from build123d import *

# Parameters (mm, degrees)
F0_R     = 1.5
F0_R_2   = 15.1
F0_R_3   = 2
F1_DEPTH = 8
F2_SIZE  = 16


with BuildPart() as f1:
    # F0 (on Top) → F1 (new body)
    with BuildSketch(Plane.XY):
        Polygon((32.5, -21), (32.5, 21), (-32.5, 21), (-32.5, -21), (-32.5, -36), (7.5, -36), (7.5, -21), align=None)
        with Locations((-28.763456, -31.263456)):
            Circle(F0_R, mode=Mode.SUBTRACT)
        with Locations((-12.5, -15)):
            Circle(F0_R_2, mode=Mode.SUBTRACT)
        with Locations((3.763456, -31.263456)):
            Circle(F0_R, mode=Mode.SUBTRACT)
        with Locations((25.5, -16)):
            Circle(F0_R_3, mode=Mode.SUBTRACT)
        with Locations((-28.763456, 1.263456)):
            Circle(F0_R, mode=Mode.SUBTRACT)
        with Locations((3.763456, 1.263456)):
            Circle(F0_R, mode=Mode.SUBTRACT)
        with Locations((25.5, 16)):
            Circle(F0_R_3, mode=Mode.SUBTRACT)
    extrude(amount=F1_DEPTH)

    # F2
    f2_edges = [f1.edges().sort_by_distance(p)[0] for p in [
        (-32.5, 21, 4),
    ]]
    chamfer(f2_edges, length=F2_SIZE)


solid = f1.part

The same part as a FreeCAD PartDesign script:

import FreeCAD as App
import Part
import Sketcher

V = App.Vector


def edges_at(feature, points):
    """Names of the edges that pass closest to the given points."""
    edges = feature.Shape.Edges
    near = lambda p: min(range(len(edges)), key=lambda i: edges[i].distToShape(Part.Vertex(*p))[0])
    return sorted({f"Edge{near(p) + 1}" for p in points})

doc = App.newDocument("Part")
body = doc.addObject("PartDesign::Body", "Body")

# Sketch on XY plane
sketch1 = doc.addObject("Sketcher::SketchObject", "Sketch")
body.addObject(sketch1)
sketch1.AttachmentSupport = (doc.XY_Plane, [""])
sketch1.MapMode = "FlatFace"
sketch1.addGeometry([
    Part.LineSegment(V(32.5, -21, 0), V(32.5, 21, 0)),  # 0
    Part.LineSegment(V(32.5, 21, 0), V(-32.5, 21, 0)),  # 1
    Part.LineSegment(V(-32.5, 21, 0), V(-32.5, -36, 0)),  # 2
    Part.LineSegment(V(-32.5, -36, 0), V(7.5, -36, 0)),  # 3
    Part.LineSegment(V(7.5, -36, 0), V(7.5, -21, 0)),  # 4
    Part.LineSegment(V(7.5, -21, 0), V(32.5, -21, 0)),  # 5
    Part.Circle(V(-28.763456, -31.263456, 0), V(0, 0, 1), 1.5),  # 6
    Part.Circle(V(-12.5, -15, 0), V(0, 0, 1), 15.1),  # 7
    Part.Circle(V(3.763456, -31.263456, 0), V(0, 0, 1), 1.5),  # 8
    Part.Circle(V(25.5, -16, 0), V(0, 0, 1), 2),  # 9
    Part.Circle(V(-28.763456, 1.263456, 0), V(0, 0, 1), 1.5),  # 10
    Part.Circle(V(3.763456, 1.263456, 0), V(0, 0, 1), 1.5),  # 11
    Part.Circle(V(25.5, 16, 0), V(0, 0, 1), 2),  # 12
], False)
sketch1.addConstraint([
    Sketcher.Constraint("Coincident", 0, 2, 1, 1),
    Sketcher.Constraint("Coincident", 1, 2, 2, 1),
    Sketcher.Constraint("Coincident", 2, 2, 3, 1),
    Sketcher.Constraint("Coincident", 3, 2, 4, 1),
    Sketcher.Constraint("Coincident", 4, 2, 5, 1),
    Sketcher.Constraint("Coincident", 5, 2, 0, 1),
    Sketcher.Constraint("Vertical", 0),
    Sketcher.Constraint("Horizontal", 1),
    Sketcher.Constraint("Vertical", 2),
    Sketcher.Constraint("Horizontal", 3),
    Sketcher.Constraint("Vertical", 4),
    Sketcher.Constraint("Horizontal", 5),
    Sketcher.Constraint("Equal", 6, 8),
    Sketcher.Constraint("Equal", 8, 10),
    Sketcher.Constraint("Equal", 10, 11),
    Sketcher.Constraint("Equal", 9, 12),
    Sketcher.Constraint("Symmetric", 1, 2, 5, 2, -1, 1),
    Sketcher.Constraint("Symmetric", 9, 3, 12, 3, -1),
    Sketcher.Constraint("Horizontal", 6, 3, 8, 3),
    Sketcher.Constraint("Horizontal", 10, 3, 11, 3),
    Sketcher.Constraint("Vertical", 6, 3, 10, 3),
    Sketcher.Constraint("Vertical", 8, 3, 11, 3),
    Sketcher.Constraint("Diameter", 6, 3.0),
    Sketcher.Constraint("Diameter", 9, 4.0),
    Sketcher.Constraint("Diameter", 7, 30.2),
    Sketcher.Constraint("DistanceX", 1, 2, 1, 1, 65.0),
    Sketcher.Constraint("DistanceX", 3, 1, 3, 2, 40.0),
    Sketcher.Constraint("DistanceY", 0, 1, 0, 2, 42.0),
    Sketcher.Constraint("DistanceY", 2, 2, 2, 1, 57.0),
    Sketcher.Constraint("DistanceY", 7, 3, -1, 1, 15.0),
    Sketcher.Constraint("DistanceY", 9, 3, -1, 1, 16.0),
    Sketcher.Constraint("DistanceX", 7, 3, 9, 3, 38.0),
    Sketcher.Constraint("DistanceX", 12, 3, 0, 2, 7.0),
    Sketcher.Constraint("DistanceX", 6, 3, -1, 1, 28.763456),
    Sketcher.Constraint("DistanceY", 6, 3, -1, 1, 31.263456),
    Sketcher.Constraint("DistanceX", -1, 1, 8, 3, 3.763456),
    Sketcher.Constraint("DistanceY", -1, 1, 10, 3, 1.263456),
])
pad1 = doc.addObject("PartDesign::Pad", "Pad")
body.addObject(pad1)
pad1.Profile = sketch1
pad1.Length = 8
doc.recompute()

chamfer = doc.addObject("PartDesign::Chamfer", "Chamfer")
body.addObject(chamfer)
chamfer.Base = (pad1, edges_at(pad1, [(-32.5, 21, 4)]))
chamfer.Size = 16

doc.recompute()
